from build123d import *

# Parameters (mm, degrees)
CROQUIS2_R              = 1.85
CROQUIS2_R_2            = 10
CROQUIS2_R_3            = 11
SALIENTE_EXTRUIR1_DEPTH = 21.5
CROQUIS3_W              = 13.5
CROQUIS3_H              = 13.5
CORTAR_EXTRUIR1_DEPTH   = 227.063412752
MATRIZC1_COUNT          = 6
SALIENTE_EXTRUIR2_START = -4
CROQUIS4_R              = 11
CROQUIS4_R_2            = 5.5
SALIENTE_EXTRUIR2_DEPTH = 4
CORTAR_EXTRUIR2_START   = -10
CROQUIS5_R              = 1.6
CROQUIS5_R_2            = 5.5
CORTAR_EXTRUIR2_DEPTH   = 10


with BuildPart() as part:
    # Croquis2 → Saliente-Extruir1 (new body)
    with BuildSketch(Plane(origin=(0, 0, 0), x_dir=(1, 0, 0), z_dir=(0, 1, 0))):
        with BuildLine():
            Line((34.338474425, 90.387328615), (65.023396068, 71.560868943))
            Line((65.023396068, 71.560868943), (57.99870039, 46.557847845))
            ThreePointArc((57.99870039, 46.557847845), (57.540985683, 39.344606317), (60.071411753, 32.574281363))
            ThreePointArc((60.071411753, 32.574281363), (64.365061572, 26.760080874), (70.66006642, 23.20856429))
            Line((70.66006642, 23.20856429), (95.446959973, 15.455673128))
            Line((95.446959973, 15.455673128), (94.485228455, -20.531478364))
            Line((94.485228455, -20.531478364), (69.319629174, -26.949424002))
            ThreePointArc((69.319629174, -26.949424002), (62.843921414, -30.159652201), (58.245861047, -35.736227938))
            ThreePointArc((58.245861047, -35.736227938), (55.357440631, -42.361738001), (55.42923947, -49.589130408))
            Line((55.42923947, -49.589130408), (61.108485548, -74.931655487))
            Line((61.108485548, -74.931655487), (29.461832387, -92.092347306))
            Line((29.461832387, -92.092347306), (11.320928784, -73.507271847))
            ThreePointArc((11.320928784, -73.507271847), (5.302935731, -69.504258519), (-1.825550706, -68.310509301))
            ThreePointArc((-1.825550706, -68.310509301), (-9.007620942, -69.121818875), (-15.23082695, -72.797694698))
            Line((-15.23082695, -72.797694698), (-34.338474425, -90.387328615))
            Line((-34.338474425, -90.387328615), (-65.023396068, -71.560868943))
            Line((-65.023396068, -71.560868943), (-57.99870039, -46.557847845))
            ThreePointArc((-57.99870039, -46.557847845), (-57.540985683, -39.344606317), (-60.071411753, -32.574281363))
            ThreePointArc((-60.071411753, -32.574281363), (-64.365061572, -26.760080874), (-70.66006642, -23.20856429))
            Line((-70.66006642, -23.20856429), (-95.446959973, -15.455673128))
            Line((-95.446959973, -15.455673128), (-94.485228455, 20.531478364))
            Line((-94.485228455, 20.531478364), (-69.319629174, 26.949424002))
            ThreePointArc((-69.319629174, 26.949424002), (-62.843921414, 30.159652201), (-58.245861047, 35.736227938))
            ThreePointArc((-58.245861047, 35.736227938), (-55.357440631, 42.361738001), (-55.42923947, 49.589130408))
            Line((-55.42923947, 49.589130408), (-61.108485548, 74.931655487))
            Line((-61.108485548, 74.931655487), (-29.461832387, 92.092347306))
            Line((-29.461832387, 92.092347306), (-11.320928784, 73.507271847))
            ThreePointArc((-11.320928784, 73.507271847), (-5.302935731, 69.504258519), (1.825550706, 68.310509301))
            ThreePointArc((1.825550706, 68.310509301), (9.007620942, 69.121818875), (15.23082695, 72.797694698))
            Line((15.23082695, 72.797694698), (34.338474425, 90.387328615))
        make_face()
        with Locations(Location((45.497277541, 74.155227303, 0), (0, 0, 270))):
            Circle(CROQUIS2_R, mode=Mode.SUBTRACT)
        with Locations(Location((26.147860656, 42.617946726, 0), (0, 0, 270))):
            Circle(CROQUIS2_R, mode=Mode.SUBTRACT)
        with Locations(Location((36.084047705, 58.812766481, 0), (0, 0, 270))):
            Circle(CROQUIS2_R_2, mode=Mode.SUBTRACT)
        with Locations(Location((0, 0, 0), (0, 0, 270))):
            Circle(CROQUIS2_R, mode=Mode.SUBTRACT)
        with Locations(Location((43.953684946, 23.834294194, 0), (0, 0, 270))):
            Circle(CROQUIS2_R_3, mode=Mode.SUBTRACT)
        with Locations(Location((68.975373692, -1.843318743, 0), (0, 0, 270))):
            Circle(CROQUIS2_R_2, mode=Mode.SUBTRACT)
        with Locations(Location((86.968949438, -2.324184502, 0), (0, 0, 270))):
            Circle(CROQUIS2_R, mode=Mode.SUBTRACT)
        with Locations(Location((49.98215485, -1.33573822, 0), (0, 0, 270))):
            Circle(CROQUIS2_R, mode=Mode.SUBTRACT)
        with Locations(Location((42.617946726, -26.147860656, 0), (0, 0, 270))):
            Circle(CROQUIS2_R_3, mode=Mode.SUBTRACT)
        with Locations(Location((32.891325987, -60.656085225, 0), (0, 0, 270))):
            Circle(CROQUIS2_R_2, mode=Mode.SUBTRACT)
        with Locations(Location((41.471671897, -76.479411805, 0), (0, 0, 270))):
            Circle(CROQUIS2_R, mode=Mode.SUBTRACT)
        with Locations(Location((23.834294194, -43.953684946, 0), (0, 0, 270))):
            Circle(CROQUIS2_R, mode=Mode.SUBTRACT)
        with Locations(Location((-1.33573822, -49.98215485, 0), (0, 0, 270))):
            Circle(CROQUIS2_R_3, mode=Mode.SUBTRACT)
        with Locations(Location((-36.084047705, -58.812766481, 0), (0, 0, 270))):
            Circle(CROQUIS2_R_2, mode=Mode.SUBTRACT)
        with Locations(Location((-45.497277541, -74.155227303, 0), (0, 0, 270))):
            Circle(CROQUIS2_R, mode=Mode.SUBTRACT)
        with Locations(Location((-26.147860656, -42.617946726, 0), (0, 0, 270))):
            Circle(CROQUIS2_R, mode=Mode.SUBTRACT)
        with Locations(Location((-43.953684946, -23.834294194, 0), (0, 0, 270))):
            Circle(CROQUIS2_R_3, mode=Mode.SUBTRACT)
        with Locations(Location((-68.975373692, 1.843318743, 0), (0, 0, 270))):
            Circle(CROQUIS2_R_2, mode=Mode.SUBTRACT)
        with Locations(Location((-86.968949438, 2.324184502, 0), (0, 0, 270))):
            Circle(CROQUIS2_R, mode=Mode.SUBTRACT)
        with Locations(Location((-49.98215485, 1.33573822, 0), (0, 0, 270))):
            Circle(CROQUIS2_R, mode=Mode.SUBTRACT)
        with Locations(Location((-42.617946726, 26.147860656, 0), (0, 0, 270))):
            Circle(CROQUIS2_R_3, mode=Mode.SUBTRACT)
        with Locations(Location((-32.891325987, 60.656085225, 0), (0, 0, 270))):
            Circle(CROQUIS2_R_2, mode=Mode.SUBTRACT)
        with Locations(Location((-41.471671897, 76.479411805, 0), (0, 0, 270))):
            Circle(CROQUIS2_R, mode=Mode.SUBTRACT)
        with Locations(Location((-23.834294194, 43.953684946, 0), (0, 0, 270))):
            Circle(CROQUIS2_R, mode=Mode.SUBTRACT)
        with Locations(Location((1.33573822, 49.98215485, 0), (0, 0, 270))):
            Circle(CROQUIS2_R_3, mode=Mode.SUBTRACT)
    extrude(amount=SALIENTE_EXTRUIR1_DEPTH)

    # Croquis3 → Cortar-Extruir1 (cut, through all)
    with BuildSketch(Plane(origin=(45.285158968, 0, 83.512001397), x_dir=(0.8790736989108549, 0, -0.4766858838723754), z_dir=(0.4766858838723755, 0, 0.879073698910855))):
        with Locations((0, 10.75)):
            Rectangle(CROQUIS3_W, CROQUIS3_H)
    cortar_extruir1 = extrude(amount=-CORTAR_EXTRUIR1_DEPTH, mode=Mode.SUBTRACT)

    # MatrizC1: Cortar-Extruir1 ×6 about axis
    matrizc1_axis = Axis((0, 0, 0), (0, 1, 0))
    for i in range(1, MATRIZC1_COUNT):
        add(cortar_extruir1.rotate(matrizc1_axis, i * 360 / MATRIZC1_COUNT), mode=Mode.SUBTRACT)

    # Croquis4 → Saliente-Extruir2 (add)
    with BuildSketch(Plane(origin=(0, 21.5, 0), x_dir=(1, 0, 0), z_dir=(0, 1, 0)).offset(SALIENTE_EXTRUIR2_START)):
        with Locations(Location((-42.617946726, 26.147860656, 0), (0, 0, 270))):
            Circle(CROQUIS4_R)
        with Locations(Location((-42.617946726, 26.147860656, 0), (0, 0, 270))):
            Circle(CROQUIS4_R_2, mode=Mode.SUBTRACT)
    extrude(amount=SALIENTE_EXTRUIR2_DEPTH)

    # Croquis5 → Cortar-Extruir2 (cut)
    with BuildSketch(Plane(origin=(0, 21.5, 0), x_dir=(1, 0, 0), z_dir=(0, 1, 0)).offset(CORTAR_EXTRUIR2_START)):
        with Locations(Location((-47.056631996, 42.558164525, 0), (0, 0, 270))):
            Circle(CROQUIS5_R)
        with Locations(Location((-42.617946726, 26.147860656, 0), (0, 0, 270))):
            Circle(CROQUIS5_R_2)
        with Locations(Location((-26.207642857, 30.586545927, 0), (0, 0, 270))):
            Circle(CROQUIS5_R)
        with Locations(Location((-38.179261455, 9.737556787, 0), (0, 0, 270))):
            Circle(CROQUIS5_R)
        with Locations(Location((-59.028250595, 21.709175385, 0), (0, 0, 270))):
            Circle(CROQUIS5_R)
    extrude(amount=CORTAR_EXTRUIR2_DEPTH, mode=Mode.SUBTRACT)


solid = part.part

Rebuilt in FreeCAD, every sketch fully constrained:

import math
import FreeCAD as App
import Part
import Sketcher
from FreeCAD import Vector
Q = App.Units.Quantity

doc = App.newDocument("Part")
params = doc.addObject("Spreadsheet::Sheet", "Params")
for row, (alias, value) in enumerate([
    ("sketch1_diameter", "20 mm"),
    ("sketch1_diameter2", "20 mm"),
    ("sketch1_diameter3", "22 mm"),
    ("sketch1_diameter4", "20 mm"),
    ("sketch1_diameter5", "22 mm"),
    ("pad1_length", "21.5 mm"),
    ("sketch2_width", "13.5 mm"),
    ("sketch3_diameter", "22 mm"),
    ("sketch3_diameter2", "11 mm"),
    ("pad2_length", "4 mm"),
    ("sketch4_diameter", "11 mm"),
    ("sketch4_diameter2", "3.2 mm"),
    ("pocket2_length", "10 mm"),
], start=1):
    params.set(f"A{row}", alias)
    params.set(f"B{row}", "=" + value)
    params.setAlias(f"B{row}", alias)

body = doc.addObject("PartDesign::Body", "Body")

# Sketch on XZ plane
sketch1 = body.newObject("Sketcher::SketchObject", "Sketch")
sketch1.AttachmentSupport = (doc.getObject("XZ_Plane"), [""])
sketch1.MapMode = "FlatFace"
sketch1.addGeometry(Part.LineSegment(Vector(65.023396, -71.560869, 0), Vector(34.338474, -90.387329, 0)), False)
sketch1.addGeometry(Part.LineSegment(Vector(34.338474, -90.387329, 0), Vector(15.230827, -72.797695, 0)), False)
sketch1.addGeometry(Part.ArcOfCircle(Part.Circle(Vector(3.518248, -85.521088, 0), Vector(0, 0, 1), 17.293619), math.radians(47.368737), math.radians(95.617098)), False)
sketch1.addGeometry(Part.ArcOfCircle(Part.Circle(Vector(1.054494, -85.58693, 0), Vector(0, 0, 1), 17.293619), math.radians(87.444553), math.radians(135.692914)), False)
sketch1.addGeometry(Part.LineSegment(Vector(-11.320929, -73.507272, 0), Vector(-29.461832, -92.092347, 0)), False)
sketch1.addGeometry(Part.LineSegment(Vector(-29.461832, -92.092347, 0), Vector(-61.108486, -74.931655, 0)), False)
sketch1.addGeometry(Part.LineSegment(Vector(-61.108486, -74.931655, 0), Vector(-55.429239, -49.58913, 0)), False)
sketch1.addGeometry(Part.ArcOfCircle(Part.Circle(Vector(-72.304311, -45.807436, 0), Vector(0, 0, 1), 17.293619), math.radians(-12.631263), math.radians(35.617097)), False)
sketch1.addGeometry(Part.ArcOfCircle(Part.Circle(Vector(-73.593208, -43.706684, 0), Vector(0, 0, 1), 17.293619), math.radians(27.444553), math.radians(75.692914)), False)
sketch1.addGeometry(Part.LineSegment(Vector(-69.319629, -26.949424, 0), Vector(-94.485228, -20.531478, 0)), False)
sketch1.addGeometry(Part.LineSegment(Vector(-94.485228, -20.531478, 0), Vector(-95.44696, 15.455673, 0)), False)
sketch1.addGeometry(Part.LineSegment(Vector(-95.44696, 15.455673, 0), Vector(-70.660066, 23.208564, 0)), False)
sketch1.addGeometry(Part.ArcOfCircle(Part.Circle(Vector(-75.822559, 39.713652, 0), Vector(0, 0, 1), 17.293619), math.radians(-72.631263), math.radians(-24.382902)), False)
sketch1.addGeometry(Part.ArcOfCircle(Part.Circle(Vector(-74.647703, 41.880246, 0), Vector(0, 0, 1), 17.293619), math.radians(-32.555447), math.radians(15.692914)), False)
sketch1.addGeometry(Part.LineSegment(Vector(-57.9987, 46.557848, 0), Vector(-65.023396, 71.560869, 0)), False)
sketch1.addGeometry(Part.LineSegment(Vector(-65.023396, 71.560869, 0), Vector(-34.338474, 90.387329, 0)), False)
sketch1.addGeometry(Part.LineSegment(Vector(-34.338474, 90.387329, 0), Vector(-15.230827, 72.797695, 0)), False)
sketch1.addGeometry(Part.ArcOfCircle(Part.Circle(Vector(-3.518248, 85.521088, 0), Vector(0, 0, 1), 17.293619), math.radians(-132.631263), math.radians(-84.382902)), False)
sketch1.addGeometry(Part.ArcOfCircle(Part.Circle(Vector(-1.054494, 85.58693, 0), Vector(0, 0, 1), 17.293619), math.radians(-92.555447), math.radians(-44.307086)), False)
sketch1.addGeometry(Part.LineSegment(Vector(11.320929, 73.507272, 0), Vector(29.461832, 92.092347, 0)), False)
sketch1.addGeometry(Part.LineSegment(Vector(29.461832, 92.092347, 0), Vector(61.108486, 74.931655, 0)), False)
sketch1.addGeometry(Part.LineSegment(Vector(61.108486, 74.931655, 0), Vector(55.429239, 49.58913, 0)), False)
sketch1.addGeometry(Part.ArcOfCircle(Part.Circle(Vector(72.304311, 45.807436, 0), Vector(0, 0, 1), 17.293619), math.radians(167.368737), math.radians(215.617097)), False)
sketch1.addGeometry(Part.ArcOfCircle(Part.Circle(Vector(73.593208, 43.706684, 0), Vector(0, 0, 1), 17.293619), math.radians(-152.555447), math.radians(-104.307086)), False)
sketch1.addGeometry(Part.LineSegment(Vector(69.319629, 26.949424, 0), Vector(94.485228, 20.531478, 0)), False)
sketch1.addGeometry(Part.LineSegment(Vector(94.485228, 20.531478, 0), Vector(95.44696, -15.455673, 0)), False)
sketch1.addGeometry(Part.LineSegment(Vector(95.44696, -15.455673, 0), Vector(70.660066, -23.208564, 0)), False)
sketch1.addGeometry(Part.ArcOfCircle(Part.Circle(Vector(75.822559, -39.713652, 0), Vector(0, 0, 1), 17.293619), math.radians(107.368737), math.radians(155.617098)), False)
sketch1.addGeometry(Part.ArcOfCircle(Part.Circle(Vector(74.647703, -41.880246, 0), Vector(0, 0, 1), 17.293619), math.radians(147.444553), math.radians(195.692914)), False)
sketch1.addGeometry(Part.LineSegment(Vector(57.9987, -46.557848, 0), Vector(65.023396, -71.560869, 0)), False)
sketch1.addGeometry(Part.Circle(Vector(41.471672, 76.479412, 0), Vector(0, 0, 1), 1.85), False)
sketch1.addGeometry(Part.Circle(Vector(32.891326, 60.656085, 0), Vector(0, 0, 1), 10), False)
sketch1.addGeometry(Part.Circle(Vector(23.834294, 43.953685, 0), Vector(0, 0, 1), 1.85), False)
sketch1.addGeometry(Part.Circle(Vector(86.968949, 2.324185, 0), Vector(0, 0, 1), 1.85), False)
sketch1.addGeometry(Part.Circle(Vector(68.975374, 1.843319, 0), Vector(0, 0, 1), 10), False)
sketch1.addGeometry(Part.Circle(Vector(49.982155, 1.335738, 0), Vector(0, 0, 1), 1.85), False)
sketch1.addGeometry(Part.Circle(Vector(42.617947, 26.147861, 0), Vector(0, 0, 1), 11), False)
sketch1.addGeometry(Part.Circle(Vector(-36.084048, 58.812766, 0), Vector(0, 0, 1), 10), False)
sketch1.addGeometry(Part.Circle(Vector(-1.335738, 49.982155, 0), Vector(0, 0, 1), 11), False)
sketch1.addGeometry(Part.Circle(Vector(-26.147861, 42.617947, 0), Vector(0, 0, 1), 1.85), False)
sketch1.addGeometry(Part.Circle(Vector(-45.497278, 74.155227, 0), Vector(0, 0, 1), 1.85), False)
sketch1.addGeometry(Part.Circle(Vector(-43.953685, 23.834294, 0), Vector(0, 0, 1), 11), False)
sketch1.addGeometry(Part.Circle(Vector(43.953685, -23.834294, 0), Vector(0, 0, 1), 11), False)
sketch1.addGeometry(Part.Circle(Vector(45.497278, -74.155227, 0), Vector(0, 0, 1), 1.85), False)
sketch1.addGeometry(Part.Circle(Vector(26.147861, -42.617947, 0), Vector(0, 0, 1), 1.85), False)
sketch1.addGeometry(Part.Circle(Vector(1.335738, -49.982155, 0), Vector(0, 0, 1), 11), False)
sketch1.addGeometry(Part.Circle(Vector(36.084048, -58.812766, 0), Vector(0, 0, 1), 10), False)
sketch1.addGeometry(Part.Circle(Vector(0, 0, 0), Vector(0, 0, 1), 1.85), False)
sketch1.addGeometry(Part.Circle(Vector(-42.617947, -26.147861, 0), Vector(0, 0, 1), 11), False)
sketch1.addGeometry(Part.Circle(Vector(-49.982155, -1.335738, 0), Vector(0, 0, 1), 1.85), False)
sketch1.addGeometry(Part.Circle(Vector(-68.975374, -1.843319, 0), Vector(0, 0, 1), 10), False)
sketch1.addGeometry(Part.Circle(Vector(-86.968949, -2.324185, 0), Vector(0, 0, 1), 1.85), False)
sketch1.addGeometry(Part.Circle(Vector(-23.834294, -43.953685, 0), Vector(0, 0, 1), 1.85), False)
sketch1.addGeometry(Part.Circle(Vector(-32.891326, -60.656085, 0), Vector(0, 0, 1), 10), False)
sketch1.addGeometry(Part.Circle(Vector(-41.471672, -76.479412, 0), Vector(0, 0, 1), 1.85), False)
sketch1.addConstraint(Sketcher.Constraint("Coincident", 0, 2, 1, 1))
sketch1.addConstraint(Sketcher.Constraint("Coincident", 1, 2, 2, 1))
sketch1.addConstraint(Sketcher.Constraint("Coincident", 2, 2, 3, 1))
sketch1.addConstraint(Sketcher.Constraint("Coincident", 3, 2, 4, 1))
sketch1.addConstraint(Sketcher.Constraint("Coincident", 4, 2, 5, 1))
sketch1.addConstraint(Sketcher.Constraint("Coincident", 5, 2, 6, 1))
sketch1.addConstraint(Sketcher.Constraint("Coincident", 6, 2, 7, 1))
sketch1.addConstraint(Sketcher.Constraint("Coincident", 7, 2, 8, 1))
sketch1.addConstraint(Sketcher.Constraint("Coincident", 8, 2, 9, 1))
sketch1.addConstraint(Sketcher.Constraint("Coincident", 9, 2, 10, 1))
sketch1.addConstraint(Sketcher.Constraint("Coincident", 10, 2, 11, 1))
sketch1.addConstraint(Sketcher.Constraint("Coincident", 11, 2, 12, 1))
sketch1.addConstraint(Sketcher.Constraint("Coincident", 12, 2, 13, 1))
sketch1.addConstraint(Sketcher.Constraint("Coincident", 13, 2, 14, 1))
sketch1.addConstraint(Sketcher.Constraint("Coincident", 14, 2, 15, 1))
sketch1.addConstraint(Sketcher.Constraint("Coincident", 15, 2, 16, 1))
sketch1.addConstraint(Sketcher.Constraint("Coincident", 16, 2, 17, 1))
sketch1.addConstraint(Sketcher.Constraint("Coincident", 17, 2, 18, 1))
sketch1.addConstraint(Sketcher.Constraint("Coincident", 18, 2, 19, 1))
sketch1.addConstraint(Sketcher.Constraint("Coincident", 19, 2, 20, 1))
sketch1.addConstraint(Sketcher.Constraint("Coincident", 20, 2, 21, 1))
sketch1.addConstraint(Sketcher.Constraint("Coincident", 21, 2, 22, 1))
sketch1.addConstraint(Sketcher.Constraint("Coincident", 22, 2, 23, 1))
sketch1.addConstraint(Sketcher.Constraint("Coincident", 23, 2, 24, 1))
sketch1.addConstraint(Sketcher.Constraint("Coincident", 24, 2, 25, 1))
sketch1.addConstraint(Sketcher.Constraint("Coincident", 25, 2, 26, 1))
sketch1.addConstraint(Sketcher.Constraint("Coincident", 26, 2, 27, 1))
sketch1.addConstraint(Sketcher.Constraint("Coincident", 27, 2, 28, 1))
sketch1.addConstraint(Sketcher.Constraint("Coincident", 28, 2, 29, 1))
sketch1.addConstraint(Sketcher.Constraint("Coincident", 29, 2, 0, 1))
sketch1.addConstraint(Sketcher.Constraint("Coincident", 47, 3, -1, 1))
sketch1.addConstraint(Sketcher.Constraint("Diameter", 31, Q("20 mm")))
sketch1.addConstraint(Sketcher.Constraint("Diameter", 34, Q("20 mm")))
sketch1.addConstraint(Sketcher.Constraint("Diameter", 36, Q("22 mm")))
sketch1.addConstraint(Sketcher.Constraint("Diameter", 37, Q("20 mm")))
sketch1.addConstraint(Sketcher.Constraint("Diameter", 38, Q("22 mm")))
sketch1.addConstraint(Sketcher.Constraint("Diameter", 41, Q("22 mm")))
sketch1.addConstraint(Sketcher.Constraint("Diameter", 42, Q("22 mm")))
sketch1.addConstraint(Sketcher.Constraint("Diameter", 45, Q("22 mm")))
sketch1.addConstraint(Sketcher.Constraint("Diameter", 46, Q("20 mm")))
sketch1.addConstraint(Sketcher.Constraint("Diameter", 48, Q("22 mm")))
sketch1.addConstraint(Sketcher.Constraint("Diameter", 50, Q("20 mm")))
sketch1.addConstraint(Sketcher.Constraint("Diameter", 53, Q("20 mm")))
sketch1.addConstraint(Sketcher.Constraint("Diameter", 30, Q("3.7 mm")))
sketch1.addConstraint(Sketcher.Constraint("Diameter", 32, Q("3.7 mm")))
sketch1.addConstraint(Sketcher.Constraint("Diameter", 33, Q("3.7 mm")))
sketch1.addConstraint(Sketcher.Constraint("Diameter", 35, Q("3.7 mm")))
sketch1.addConstraint(Sketcher.Constraint("Diameter", 39, Q("3.7 mm")))
sketch1.addConstraint(Sketcher.Constraint("Diameter", 40, Q("3.7 mm")))
sketch1.addConstraint(Sketcher.Constraint("Diameter", 43, Q("3.7 mm")))
sketch1.addConstraint(Sketcher.Constraint("Diameter", 44, Q("3.7 mm")))
sketch1.addConstraint(Sketcher.Constraint("Diameter", 47, Q("3.7 mm")))
sketch1.addConstraint(Sketcher.Constraint("Diameter", 49, Q("3.7 mm")))
sketch1.addConstraint(Sketcher.Constraint("Diameter", 51, Q("3.7 mm")))
sketch1.addConstraint(Sketcher.Constraint("Diameter", 52, Q("3.7 mm")))
sketch1.addConstraint(Sketcher.Constraint("Diameter", 54, Q("3.7 mm")))
sketch1.addConstraint(Sketcher.Constraint("Distance", 0, Q("36 mm")))
sketch1.addConstraint(Sketcher.Constraint("Distance", 5, Q("36 mm")))
sketch1.addConstraint(Sketcher.Constraint("Distance", 10, Q("36 mm")))
sketch1.addConstraint(Sketcher.Constraint("Distance", 15, Q("36 mm")))
sketch1.addConstraint(Sketcher.Constraint("Distance", 20, Q("36 mm")))
sketch1.addConstraint(Sketcher.Constraint("Distance", 25, Q("36 mm")))
sketch1.addConstraint(Sketcher.Constraint("Radius", 2, Q("17.293619 mm")))
sketch1.addConstraint(Sketcher.Constraint("Radius", 3, Q("17.293619 mm")))
sketch1.addConstraint(Sketcher.Constraint("Radius", 7, Q("17.293619 mm")))
sketch1.addConstraint(Sketcher.Constraint("Radius", 8, Q("17.293619 mm")))
sketch1.addConstraint(Sketcher.Constraint("Radius", 12, Q("17.293619 mm")))
sketch1.addConstraint(Sketcher.Constraint("Radius", 13, Q("17.293619 mm")))
sketch1.addConstraint(Sketcher.Constraint("Radius", 17, Q("17.293619 mm")))
sketch1.addConstraint(Sketcher.Constraint("Radius", 18, Q("17.293619 mm")))
sketch1.addConstraint(Sketcher.Constraint("Radius", 22, Q("17.293619 mm")))
sketch1.addConstraint(Sketcher.Constraint("Radius", 23, Q("17.293619 mm")))
sketch1.addConstraint(Sketcher.Constraint("Radius", 27, Q("17.293619 mm")))
sketch1.addConstraint(Sketcher.Constraint("Radius", 28, Q("17.293619 mm")))
sketch1.addConstraint(Sketcher.Constraint("DistanceX", 13, 2, -1, 1, Q("57.9987 mm")))
sketch1.addConstraint(Sketcher.Constraint("DistanceX", -1, 1, 28, 2, Q("57.9987 mm")))
sketch1.addConstraint(Sketcher.Constraint("Distance", 1, Q("25.971088 mm")))
sketch1.addConstraint(Sketcher.Constraint("Distance", 4, Q("25.971088 mm")))
sketch1.addConstraint(Sketcher.Constraint("Distance", 6, Q("25.971088 mm")))
sketch1.addConstraint(Sketcher.Constraint("Distance", 9, Q("25.971088 mm")))
sketch1.addConstraint(Sketcher.Constraint("Distance", 11, Q("25.971088 mm")))
sketch1.addConstraint(Sketcher.Constraint("Distance", 14, Q("25.971088 mm")))
sketch1.addConstraint(Sketcher.Constraint("Distance", 16, Q("25.971088 mm")))
sketch1.addConstraint(Sketcher.Constraint("Distance", 19, Q("25.971088 mm")))
sketch1.addConstraint(Sketcher.Constraint("Distance", 21, Q("25.971088 mm")))
sketch1.addConstraint(Sketcher.Constraint("Distance", 24, Q("25.971088 mm")))
sketch1.addConstraint(Sketcher.Constraint("Distance", 26, Q("25.971088 mm")))
sketch1.addConstraint(Sketcher.Constraint("Distance", 29, Q("25.971088 mm")))
sketch1.addConstraint(Sketcher.Constraint("DistanceY", 3, 3, -1, 1, Q("85.58693 mm")))
sketch1.addConstraint(Sketcher.Constraint("DistanceX", 7, 3, -1, 1, Q("72.304311 mm")))
sketch1.addConstraint(Sketcher.Constraint("DistanceX", 8, 3, -1, 1, Q("73.593208 mm")))
sketch1.addConstraint(Sketcher.Constraint("DistanceX", 12, 3, -1, 1, Q("75.822559 mm")))
sketch1.addConstraint(Sketcher.Constraint("DistanceY", -1, 1, 12, 3, Q("39.713652 mm")))
sketch1.addConstraint(Sketcher.Constraint("DistanceY", -1, 1, 18, 3, Q("85.58693 mm")))
sketch1.addConstraint(Sketcher.Constraint("DistanceX", -1, 1, 22, 3, Q("72.304311 mm")))
sketch1.addConstraint(Sketcher.Constraint("DistanceX", -1, 1, 23, 3, Q("73.593208 mm")))
sketch1.addConstraint(Sketcher.Constraint("DistanceX", -1, 1, 27, 3, Q("75.822559 mm")))
sketch1.addConstraint(Sketcher.Constraint("DistanceY", 27, 3, -1, 1, Q("39.713652 mm")))
sketch1.addConstraint(Sketcher.Constraint("DistanceX", -1, 1, 30, 3, Q("41.471672 mm")))
sketch1.addConstraint(Sketcher.Constraint("DistanceY", -1, 1, 30, 3, Q("76.479412 mm")))
sketch1.addConstraint(Sketcher.Constraint("DistanceX", -1, 1, 33, 3, Q("86.968949 mm")))
sketch1.addConstraint(Sketcher.Constraint("DistanceY", -1, 1, 34, 3, Q("1.843319 mm")))
sketch1.addConstraint(Sketcher.Constraint("DistanceY", -1, 1, 35, 3, Q("1.335738 mm")))
sketch1.addConstraint(Sketcher.Constraint("DistanceY", -1, 1, 36, 3, Q("26.147861 mm")))
sketch1.addConstraint(Sketcher.Constraint("DistanceX", 38, 3, -1, 1, Q("1.335738 mm")))
sketch1.addConstraint(Sketcher.Constraint("DistanceX", 39, 3, -1, 1, Q("26.147861 mm")))
sketch1.addConstraint(Sketcher.Constraint("DistanceX", -1, 1, 44, 3, Q("26.147861 mm")))
sketch1.addConstraint(Sketcher.Constraint("DistanceX", -1, 1, 45, 3, Q("1.335738 mm")))
sketch1.addConstraint(Sketcher.Constraint("DistanceY", 48, 3, -1, 1, Q("26.147861 mm")))
sketch1.addConstraint(Sketcher.Constraint("DistanceY", 49, 3, -1, 1, Q("1.335738 mm")))
sketch1.addConstraint(Sketcher.Constraint("DistanceY", 50, 3, -1, 1, Q("1.843319 mm")))
sketch1.addConstraint(Sketcher.Constraint("DistanceX", 51, 3, -1, 1, Q("86.968949 mm")))
sketch1.addConstraint(Sketcher.Constraint("DistanceX", 54, 3, -1, 1, Q("41.471672 mm")))
sketch1.addConstraint(Sketcher.Constraint("DistanceY", 54, 3, -1, 1, Q("76.479412 mm")))
sketch1.addConstraint(Sketcher.Constraint("DistanceY", 0, 2, -1, 1, Q("90.387329 mm")))
sketch1.addConstraint(Sketcher.Constraint("DistanceX", -1, 1, 2, 2, Q("1.825551 mm")))
sketch1.addConstraint(Sketcher.Constraint("DistanceY", 2, 2, -1, 1, Q("68.310509 mm")))
sketch1.addConstraint(Sketcher.Constraint("DistanceX", 3, 2, -1, 1, Q("11.320929 mm")))
sketch1.addConstraint(Sketcher.Constraint("DistanceX", 6, 2, -1, 1, Q("55.429239 mm")))
sketch1.addConstraint(Sketcher.Constraint("DistanceY", 6, 2, -1, 1, Q("49.58913 mm")))
sketch1.addConstraint(Sketcher.Constraint("DistanceX", 7, 2, -1, 1, Q("58.245861 mm")))
sketch1.addConstraint(Sketcher.Constraint("DistanceX", 8, 2, -1, 1, Q("69.319629 mm")))
sketch1.addConstraint(Sketcher.Constraint("DistanceX", 9, 2, -1, 1, Q("94.485228 mm")))
sketch1.addConstraint(Sketcher.Constraint("DistanceX", 10, 2, -1, 1, Q("95.44696 mm")))
sketch1.addConstraint(Sketcher.Constraint("DistanceX", 12, 2, -1, 1, Q("60.071412 mm")))
sketch1.addConstraint(Sketcher.Constraint("DistanceY", -1, 1, 14, 2, Q("71.560869 mm")))
sketch1.addConstraint(Sketcher.Constraint("DistanceY", -1, 1, 15, 2, Q("90.387329 mm")))
sketch1.addConstraint(Sketcher.Constraint("DistanceX", 17, 2, -1, 1, Q("1.825551 mm")))
sketch1.addConstraint(Sketcher.Constraint("DistanceY", -1, 1, 17, 2, Q("68.310509 mm")))
sketch1.addConstraint(Sketcher.Constraint("DistanceX", -1, 1, 18, 2, Q("11.320929 mm")))
sketch1.addConstraint(Sketcher.Constraint("DistanceX", -1, 1, 21, 2, Q("55.429239 mm")))
sketch1.addConstraint(Sketcher.Constraint("DistanceY", -1, 1, 21, 2, Q("49.58913 mm")))
sketch1.addConstraint(Sketcher.Constraint("DistanceX", -1, 1, 22, 2, Q("58.245861 mm")))
sketch1.addConstraint(Sketcher.Constraint("DistanceX", -1, 1, 23, 2, Q("69.319629 mm")))
sketch1.addConstraint(Sketcher.Constraint("DistanceX", -1, 1, 24, 2, Q("94.485228 mm")))
sketch1.addConstraint(Sketcher.Constraint("DistanceX", -1, 1, 25, 2, Q("95.44696 mm")))
sketch1.addConstraint(Sketcher.Constraint("DistanceX", -1, 1, 27, 2, Q("60.071412 mm")))
sketch1.addConstraint(Sketcher.Constraint("DistanceY", 29, 2, -1, 1, Q("71.560869 mm")))
sketch1.addConstraint(Sketcher.Constraint("DistanceX", -1, 1, 2, 3, Q("3.518248 mm")))
sketch1.addConstraint(Sketcher.Constraint("DistanceX", 13, 3, -1, 1, Q("74.647703 mm")))
sketch1.addConstraint(Sketcher.Constraint("DistanceX", 17, 3, -1, 1, Q("3.518248 mm")))
sketch1.addConstraint(Sketcher.Constraint("DistanceX", -1, 1, 28, 3, Q("74.647703 mm")))
sketch1.addConstraint(Sketcher.Constraint("DistanceX", -1, 1, 31, 3, Q("32.891326 mm")))
sketch1.addConstraint(Sketcher.Constraint("DistanceY", -1, 1, 31, 3, Q("60.656085 mm")))
sketch1.addConstraint(Sketcher.Constraint("DistanceX", -1, 1, 32, 3, Q("23.834294 mm")))
sketch1.addConstraint(Sketcher.Constraint("DistanceY", -1, 1, 32, 3, Q("43.953685 mm")))
sketch1.addConstraint(Sketcher.Constraint("DistanceY", -1, 1, 33, 3, Q("2.324185 mm")))
sketch1.addConstraint(Sketcher.Constraint("DistanceX", -1, 1, 34, 3, Q("68.975374 mm")))
sketch1.addConstraint(Sketcher.Constraint("DistanceX", -1, 1, 35, 3, Q("49.982155 mm")))
sketch1.addConstraint(Sketcher.Constraint("DistanceX", -1, 1, 36, 3, Q("42.617947 mm")))
sketch1.addConstraint(Sketcher.Constraint("DistanceX", 37, 3, -1, 1, Q("36.084048 mm")))
sketch1.addConstraint(Sketcher.Constraint("DistanceY", -1, 1, 37, 3, Q("58.812766 mm")))
sketch1.addConstraint(Sketcher.Constraint("DistanceY", -1, 1, 38, 3, Q("49.982155 mm")))
sketch1.addConstraint(Sketcher.Constraint("DistanceY", -1, 1, 39, 3, Q("42.617947 mm")))
sketch1.addConstraint(Sketcher.Constraint("DistanceX", 40, 3, -1, 1, Q("45.497278 mm")))
sketch1.addConstraint(Sketcher.Constraint("DistanceY", -1, 1, 40, 3, Q("74.155227 mm")))
sketch1.addConstraint(Sketcher.Constraint("DistanceX", 41, 3, -1, 1, Q("43.953685 mm")))
sketch1.addConstraint(Sketcher.Constraint("DistanceY", -1, 1, 41, 3, Q("23.834294 mm")))
sketch1.addConstraint(Sketcher.Constraint("DistanceX", -1, 1, 42, 3, Q("43.953685 mm")))
sketch1.addConstraint(Sketcher.Constraint("DistanceY", 42, 3, -1, 1, Q("23.834294 mm")))
sketch1.addConstraint(Sketcher.Constraint("DistanceX", -1, 1, 43, 3, Q("45.497278 mm")))
sketch1.addConstraint(Sketcher.Constraint("DistanceY", 43, 3, -1, 1, Q("74.155227 mm")))
sketch1.addConstraint(Sketcher.Constraint("DistanceY", 44, 3, -1, 1, Q("42.617947 mm")))
sketch1.addConstraint(Sketcher.Constraint("DistanceY", 45, 3, -1, 1, Q("49.982155 mm")))
sketch1.addConstraint(Sketcher.Constraint("DistanceX", -1, 1, 46, 3, Q("36.084048 mm")))
sketch1.addConstraint(Sketcher.Constraint("DistanceY", 46, 3, -1, 1, Q("58.812766 mm")))
sketch1.addConstraint(Sketcher.Constraint("DistanceX", 48, 3, -1, 1, Q("42.617947 mm")))
sketch1.addConstraint(Sketcher.Constraint("DistanceX", 49, 3, -1, 1, Q("49.982155 mm")))
sketch1.addConstraint(Sketcher.Constraint("DistanceX", 50, 3, -1, 1, Q("68.975374 mm")))
sketch1.addConstraint(Sketcher.Constraint("DistanceY", 51, 3, -1, 1, Q("2.324185 mm")))
sketch1.addConstraint(Sketcher.Constraint("DistanceX", 52, 3, -1, 1, Q("23.834294 mm")))
sketch1.addConstraint(Sketcher.Constraint("DistanceY", 52, 3, -1, 1, Q("43.953685 mm")))
sketch1.addConstraint(Sketcher.Constraint("DistanceX", 53, 3, -1, 1, Q("32.891326 mm")))
sketch1.addConstraint(Sketcher.Constraint("DistanceY", 53, 3, -1, 1, Q("60.656085 mm")))
sketch1.addConstraint(Sketcher.Constraint("DistanceX", 4, 2, -1, 1, Q("29.461832 mm")))
sketch1.addConstraint(Sketcher.Constraint("DistanceX", -1, 1, 19, 2, Q("29.461832 mm")))
sketch1.setExpression("Constraints[31]", "Params.sketch1_diameter")
sketch1.setExpression("Constraints[32]", "Params.sketch1_diameter2")
sketch1.setExpression("Constraints[33]", "Params.sketch1_diameter3")
sketch1.setExpression("Constraints[34]", "Params.sketch1_diameter4")
sketch1.setExpression("Constraints[35]", "Params.sketch1_diameter5")
pad1 = body.newObject("PartDesign::Pad", "Pad")
pad1.Profile = sketch1
pad1.setExpression("Length", "Params.pad1_length")
pad1.Reversed = True

# Sketch on an angled plane
sketch2 = body.newObject("Sketcher::SketchObject", "Sketch001")
sketch2.Placement = App.Placement(Vector(45.285159, 0, 83.512001), App.Rotation(Vector(0.879073699, 0, -0.476685884), Vector(0, 1, 0), Vector(0.476685884, 0, 0.879073699), "ZXY"))
sketch2.addGeometry(Part.LineSegment(Vector(-7, 18, 0), Vector(-7, 4, 0)), False)
sketch2.addGeometry(Part.LineSegment(Vector(-7, 4, 0), Vector(7, 4, 0)), False)
sketch2.addGeometry(Part.LineSegment(Vector(7, 4, 0), Vector(7, 18, 0)), False)
sketch2.addGeometry(Part.LineSegment(Vector(7, 18, 0), Vector(-7, 18, 0)), False)
sketch2.addConstraint(Sketcher.Constraint("Coincident", 0, 2, 1, 1))
sketch2.addConstraint(Sketcher.Constraint("Coincident", 1, 2, 2, 1))
sketch2.addConstraint(Sketcher.Constraint("Coincident", 2, 2, 3, 1))
sketch2.addConstraint(Sketcher.Constraint("Coincident", 3, 2, 0, 1))
sketch2.addConstraint(Sketcher.Constraint("Vertical", 0))
sketch2.addConstraint(Sketcher.Constraint("Horizontal", 1))
sketch2.addConstraint(Sketcher.Constraint("Vertical", 2))
sketch2.addConstraint(Sketcher.Constraint("Horizontal", 3))
sketch2.addConstraint(Sketcher.Constraint("Equal", 3, 0))
sketch2.addConstraint(Sketcher.Constraint("DistanceX", 1, 1, 1, 2, Q("13.5 mm")))
sketch2.addConstraint(Sketcher.Constraint("DistanceY", -1, 1, 0, 2, Q("4 mm")))
sketch2.addConstraint(Sketcher.Constraint("DistanceX", 0, 2, -1, 1, Q("6.75 mm")))
sketch2.setExpression("Constraints[9]", "Params.sketch2_width")
pocket1 = body.newObject("PartDesign::Pocket", "Pocket")
pocket1.Profile = sketch2
pocket1.Type = "ThroughAll"
doc.recompute()

polarpattern = body.newObject("PartDesign::PolarPattern", "PolarPattern")
polarpattern.Originals = [pocket1]
polarpattern.Axis = (doc.getObject("Y_Axis"), [""])
polarpattern.Angle = 360
polarpattern.Occurrences = 6
body.Tip = polarpattern

# Sketch on XZ plane
sketch3 = body.newObject("Sketcher::SketchObject", "Sketch002")
sketch3.AttachmentSupport = (doc.getObject("XZ_Plane"), [""])
sketch3.MapMode = "FlatFace"
sketch3.AttachmentOffset = App.Placement(Vector(0, 0, -17.5), App.Rotation())
sketch3.addGeometry(Part.Circle(Vector(-43, -26, 0), Vector(0, 0, 1), 11), False)
sketch3.addGeometry(Part.Circle(Vector(-43, -26, 0), Vector(0, 0, 1), 6), False)
sketch3.addConstraint(Sketcher.Constraint("Coincident", 1, 3, 0, 3))
sketch3.addConstraint(Sketcher.Constraint("Diameter", 0, Q("22 mm")))
sketch3.addConstraint(Sketcher.Constraint("Diameter", 1, Q("11 mm")))
sketch3.addConstraint(Sketcher.Constraint("DistanceY", 0, 3, -1, 1, Q("26.147861 mm")))
sketch3.addConstraint(Sketcher.Constraint("DistanceX", 0, 3, -1, 1, Q("42.617947 mm")))
sketch3.setExpression("Constraints[1]", "Params.sketch3_diameter")
sketch3.setExpression("Constraints[2]", "Params.sketch3_diameter2")
pad2 = body.newObject("PartDesign::Pad", "Pad001")
pad2.Profile = sketch3
pad2.setExpression("Length", "Params.pad2_length")
pad2.Reversed = True

# Sketch on XZ plane
sketch4 = body.newObject("Sketcher::SketchObject", "Sketch003")
sketch4.AttachmentSupport = (doc.getObject("XZ_Plane"), [""])
sketch4.MapMode = "FlatFace"
sketch4.AttachmentOffset = App.Placement(Vector(0, 0, -11.5), App.Rotation())
sketch4.addGeometry(Part.Circle(Vector(-47.1, -42.6, 0), Vector(0, 0, 1), 1.6), False)
sketch4.addGeometry(Part.Circle(Vector(-42.6, -26.1, 0), Vector(0, 0, 1), 5.5), False)
sketch4.addGeometry(Part.Circle(Vector(-26.2, -30.6, 0), Vector(0, 0, 1), 1.6), False)
sketch4.addGeometry(Part.Circle(Vector(-38.2, -9.7, 0), Vector(0, 0, 1), 1.6), False)
sketch4.addGeometry(Part.Circle(Vector(-59, -21.7, 0), Vector(0, 0, 1), 1.6), False)
sketch4.addConstraint(Sketcher.Constraint("Equal", 0, 2))
sketch4.addConstraint(Sketcher.Constraint("Equal", 2, 3))
sketch4.addConstraint(Sketcher.Constraint("Equal", 3, 4))
sketch4.addConstraint(Sketcher.Constraint("Diameter", 1, Q("11 mm")))
sketch4.addConstraint(Sketcher.Constraint("Diameter", 0, Q("3.2 mm")))
sketch4.addConstraint(Sketcher.Constraint("DistanceX", 0, 3, -1, 1, Q("47.056632 mm")))
sketch4.addConstraint(Sketcher.Constraint("DistanceY", 1, 3, -1, 1, Q("26.147861 mm")))
sketch4.addConstraint(Sketcher.Constraint("DistanceX", 3, 3, -1, 1, Q("38.179261 mm")))
sketch4.addConstraint(Sketcher.Constraint("DistanceX", 4, 3, -1, 1, Q("59.028251 mm")))
sketch4.addConstraint(Sketcher.Constraint("DistanceX", 0, 3, 2, 3, Q("20.848989 mm")))
sketch4.addConstraint(Sketcher.Constraint("DistanceY", 0, 3, 2, 3, Q("11.971619 mm")))
sketch4.addConstraint(Sketcher.Constraint("DistanceY", 2, 3, 3, 3, Q("20.848989 mm")))
sketch4.addConstraint(Sketcher.Constraint("DistanceY", 4, 3, 3, 3, Q("11.971619 mm")))
sketch4.addConstraint(Sketcher.Constraint("DistanceY", 0, 3, -1, 1, Q("42.558165 mm")))
sketch4.addConstraint(Sketcher.Constraint("DistanceX", 1, 3, -1, 1, Q("42.617947 mm")))
sketch4.setExpression("Constraints[3]", "Params.sketch4_diameter")
sketch4.setExpression("Constraints[4]", "Params.sketch4_diameter2")
pocket2 = body.newObject("PartDesign::Pocket", "Pocket001")
pocket2.Profile = sketch4
pocket2.setExpression("Length", "Params.pocket2_length")

doc.recompute()
